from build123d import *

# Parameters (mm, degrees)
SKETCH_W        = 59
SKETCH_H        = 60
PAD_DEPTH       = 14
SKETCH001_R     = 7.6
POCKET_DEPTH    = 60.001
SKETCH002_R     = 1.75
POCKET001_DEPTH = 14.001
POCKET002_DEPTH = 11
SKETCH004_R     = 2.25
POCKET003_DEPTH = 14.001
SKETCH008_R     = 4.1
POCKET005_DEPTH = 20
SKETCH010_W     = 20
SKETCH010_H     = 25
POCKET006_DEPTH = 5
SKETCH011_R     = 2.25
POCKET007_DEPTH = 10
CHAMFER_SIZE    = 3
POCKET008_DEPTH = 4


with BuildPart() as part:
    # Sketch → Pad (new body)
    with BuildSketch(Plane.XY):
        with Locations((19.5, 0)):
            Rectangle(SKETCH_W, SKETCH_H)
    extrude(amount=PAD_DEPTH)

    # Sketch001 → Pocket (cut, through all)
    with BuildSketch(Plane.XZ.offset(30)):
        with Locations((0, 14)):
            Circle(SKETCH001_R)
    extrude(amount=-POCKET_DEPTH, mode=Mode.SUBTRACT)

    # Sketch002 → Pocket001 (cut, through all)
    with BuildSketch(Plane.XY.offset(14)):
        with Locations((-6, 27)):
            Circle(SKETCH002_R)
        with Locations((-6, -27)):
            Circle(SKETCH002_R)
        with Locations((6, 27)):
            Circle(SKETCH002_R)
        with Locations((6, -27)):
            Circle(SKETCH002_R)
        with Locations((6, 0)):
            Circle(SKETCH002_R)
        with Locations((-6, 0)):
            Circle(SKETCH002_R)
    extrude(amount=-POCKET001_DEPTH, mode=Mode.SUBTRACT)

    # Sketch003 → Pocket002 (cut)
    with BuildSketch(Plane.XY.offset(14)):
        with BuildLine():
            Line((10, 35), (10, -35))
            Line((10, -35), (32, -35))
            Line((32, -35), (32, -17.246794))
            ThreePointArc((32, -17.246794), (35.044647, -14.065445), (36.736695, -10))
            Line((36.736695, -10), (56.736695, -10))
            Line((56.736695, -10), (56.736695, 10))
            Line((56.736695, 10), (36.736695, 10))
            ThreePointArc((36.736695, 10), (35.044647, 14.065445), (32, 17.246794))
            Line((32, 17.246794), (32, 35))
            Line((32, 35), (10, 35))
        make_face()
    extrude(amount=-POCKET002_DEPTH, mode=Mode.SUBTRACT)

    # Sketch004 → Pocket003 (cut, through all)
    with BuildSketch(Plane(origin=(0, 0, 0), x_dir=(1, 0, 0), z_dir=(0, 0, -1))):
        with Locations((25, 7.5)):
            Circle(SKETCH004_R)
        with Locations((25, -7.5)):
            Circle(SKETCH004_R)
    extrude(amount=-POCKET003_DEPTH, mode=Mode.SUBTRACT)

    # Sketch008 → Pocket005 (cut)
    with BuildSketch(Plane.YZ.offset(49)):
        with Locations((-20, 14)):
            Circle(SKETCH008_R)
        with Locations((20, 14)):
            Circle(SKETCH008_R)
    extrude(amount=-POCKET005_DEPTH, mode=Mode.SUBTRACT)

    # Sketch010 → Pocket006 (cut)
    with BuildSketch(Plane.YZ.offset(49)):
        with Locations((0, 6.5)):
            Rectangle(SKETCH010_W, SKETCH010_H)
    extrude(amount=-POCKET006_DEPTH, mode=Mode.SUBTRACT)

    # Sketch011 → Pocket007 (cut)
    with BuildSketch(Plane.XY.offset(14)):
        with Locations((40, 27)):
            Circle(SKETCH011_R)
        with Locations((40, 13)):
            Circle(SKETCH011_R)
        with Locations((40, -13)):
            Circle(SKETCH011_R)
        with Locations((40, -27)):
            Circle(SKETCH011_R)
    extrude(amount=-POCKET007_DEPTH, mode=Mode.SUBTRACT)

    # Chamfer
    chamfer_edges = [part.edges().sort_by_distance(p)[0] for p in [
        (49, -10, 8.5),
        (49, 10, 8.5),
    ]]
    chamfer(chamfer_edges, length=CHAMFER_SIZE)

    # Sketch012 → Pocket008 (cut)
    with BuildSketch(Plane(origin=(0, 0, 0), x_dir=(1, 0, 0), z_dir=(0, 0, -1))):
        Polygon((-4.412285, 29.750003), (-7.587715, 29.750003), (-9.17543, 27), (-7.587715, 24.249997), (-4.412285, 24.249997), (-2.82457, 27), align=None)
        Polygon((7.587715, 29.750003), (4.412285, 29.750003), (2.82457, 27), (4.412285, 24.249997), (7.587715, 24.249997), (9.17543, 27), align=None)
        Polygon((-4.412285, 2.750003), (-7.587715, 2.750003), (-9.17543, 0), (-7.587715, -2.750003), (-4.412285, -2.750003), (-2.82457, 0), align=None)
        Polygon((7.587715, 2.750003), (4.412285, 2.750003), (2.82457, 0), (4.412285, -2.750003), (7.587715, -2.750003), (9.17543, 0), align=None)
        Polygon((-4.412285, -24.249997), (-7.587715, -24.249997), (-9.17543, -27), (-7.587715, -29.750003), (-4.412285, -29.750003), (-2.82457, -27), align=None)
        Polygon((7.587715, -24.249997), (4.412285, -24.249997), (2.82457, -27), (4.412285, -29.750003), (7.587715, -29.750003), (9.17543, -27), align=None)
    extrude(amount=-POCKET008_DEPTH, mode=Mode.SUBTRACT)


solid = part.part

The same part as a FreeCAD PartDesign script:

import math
import FreeCAD as App
import Part
import Sketcher
Q = App.Units.Quantity


def edges_at(feature, points):
    """Names of the edges that pass closest to the given points."""
    edges = feature.Shape.Edges
    near = lambda p: min(range(len(edges)), key=lambda i: edges[i].distToShape(Part.Vertex(*p))[0])
    return sorted({f"Edge{near(p) + 1}" for p in points})

doc = App.newDocument("Part")
body = doc.addObject("PartDesign::Body", "Body")

sketch1 = body.newObject("Sketcher::SketchObject", "Sketch")
sketch1.AttachmentSupport = (doc.getObject("XY_Plane"), [""])
sketch1.MapMode = "FlatFace"
sketch1.addGeometry(Part.LineSegment(App.Vector(-10, 30, 0), App.Vector(-10, -30, 0)), False)
sketch1.addGeometry(Part.LineSegment(App.Vector(-10, -30, 0), App.Vector(49, -30, 0)), False)
sketch1.addGeometry(Part.LineSegment(App.Vector(49, -30, 0), App.Vector(49, 30, 0)), False)
sketch1.addGeometry(Part.LineSegment(App.Vector(49, 30, 0), App.Vector(-10, 30, 0)), False)
sketch1.addConstraint(Sketcher.Constraint("Coincident", 0, 2, 1, 1))
sketch1.addConstraint(Sketcher.Constraint("Coincident", 1, 2, 2, 1))
sketch1.addConstraint(Sketcher.Constraint("Coincident", 2, 2, 3, 1))
sketch1.addConstraint(Sketcher.Constraint("Coincident", 3, 2, 0, 1))
sketch1.addConstraint(Sketcher.Constraint("Vertical", 0))
sketch1.addConstraint(Sketcher.Constraint("Horizontal", 1))
sketch1.addConstraint(Sketcher.Constraint("Vertical", 2))
sketch1.addConstraint(Sketcher.Constraint("Horizontal", 3))
sketch1.addConstraint(Sketcher.Constraint("DistanceX", 1, 1, 1, 2, Q("59 mm")))
sketch1.addConstraint(Sketcher.Constraint("DistanceY", 0, 2, 0, 1, Q("60 mm")))
sketch1.addConstraint(Sketcher.Constraint("DistanceX", 0, 2, -1, 1, Q("10 mm")))
sketch1.addConstraint(Sketcher.Constraint("DistanceY", 0, 2, -1, 1, Q("30 mm")))
pad1 = body.newObject("PartDesign::Pad", "Pad")
pad1.Profile = sketch1
pad1.Length = 14

sketch2 = body.newObject("Sketcher::SketchObject", "Sketch001")
sketch2.AttachmentSupport = (doc.getObject("XZ_Plane"), [""])
sketch2.MapMode = "FlatFace"
sketch2.AttachmentOffset = App.Placement(App.Vector(0, 0, 30), App.Rotation())
sketch2.addGeometry(Part.Circle(App.Vector(0, 14, 0), App.Vector(0, 0, 1), 8), False)
sketch2.addConstraint(Sketcher.Constraint("PointOnObject", 0, 3, -2))
sketch2.addConstraint(Sketcher.Constraint("Diameter", 0, Q("15.2 mm")))
sketch2.addConstraint(Sketcher.Constraint("DistanceY", -1, 1, 0, 3, Q("14 mm")))
pocket1 = body.newObject("PartDesign::Pocket", "Pocket")
pocket1.Profile = sketch2
pocket1.Type = "ThroughAll"

sketch3 = body.newObject("Sketcher::SketchObject", "Sketch002")
sketch3.AttachmentSupport = (doc.getObject("XY_Plane"), [""])
sketch3.MapMode = "FlatFace"
sketch3.AttachmentOffset = App.Placement(App.Vector(0, 0, 14), App.Rotation())
sketch3.addGeometry(Part.Circle(App.Vector(-6, 27, 0), App.Vector(0, 0, 1), 1.8), False)
sketch3.addGeometry(Part.Circle(App.Vector(-6, -27, 0), App.Vector(0, 0, 1), 1.8), False)
sketch3.addGeometry(Part.Circle(App.Vector(6, 27, 0), App.Vector(0, 0, 1), 1.8), False)
sketch3.addGeometry(Part.Circle(App.Vector(6, -27, 0), App.Vector(0, 0, 1), 1.8), False)
sketch3.addGeometry(Part.Circle(App.Vector(6, 0, 0), App.Vector(0, 0, 1), 1.8), False)
sketch3.addGeometry(Part.Circle(App.Vector(-6, 0, 0), App.Vector(0, 0, 1), 1.8), False)
sketch3.addConstraint(Sketcher.Constraint("Equal", 0, 1))
sketch3.addConstraint(Sketcher.Constraint("Equal", 1, 2))
sketch3.addConstraint(Sketcher.Constraint("Equal", 2, 3))
sketch3.addConstraint(Sketcher.Constraint("Equal", 3, 4))
sketch3.addConstraint(Sketcher.Constraint("Equal", 4, 5))
sketch3.addConstraint(Sketcher.Constraint("Symmetric", 1, 3, 2, 3, -1, 1))
sketch3.addConstraint(Sketcher.Constraint("Symmetric", 0, 3, 3, 3, -1, 1))
sketch3.addConstraint(Sketcher.Constraint("Symmetric", 4, 3, 5, 3, -1, 1))
sketch3.addConstraint(Sketcher.Constraint("Symmetric", 0, 3, 2, 3, -2))
sketch3.addConstraint(Sketcher.Constraint("PointOnObject", 4, 3, -1))
sketch3.addConstraint(Sketcher.Constraint("Vertical", 3, 3, 4, 3))
sketch3.addConstraint(Sketcher.Constraint("Diameter", 0, Q("3.5 mm")))
sketch3.addConstraint(Sketcher.Constraint("DistanceX", 0, 3, -1, 1, Q("6 mm")))
sketch3.addConstraint(Sketcher.Constraint("DistanceY", -1, 1, 0, 3, Q("27 mm")))
pocket2 = body.newObject("PartDesign::Pocket", "Pocket001")
pocket2.Profile = sketch3
pocket2.Type = "ThroughAll"

sketch4 = body.newObject("Sketcher::SketchObject", "Sketch003")
sketch4.AttachmentSupport = (doc.getObject("XY_Plane"), [""])
sketch4.MapMode = "FlatFace"
sketch4.AttachmentOffset = App.Placement(App.Vector(0, 0, 14), App.Rotation())
sketch4.addGeometry(Part.LineSegment(App.Vector(10, 35, 0), App.Vector(10, -35, 0)), False)
sketch4.addGeometry(Part.LineSegment(App.Vector(10, -35, 0), App.Vector(32, -35, 0)), False)
sketch4.addGeometry(Part.LineSegment(App.Vector(32, -35, 0), App.Vector(32, -17, 0)), False)
sketch4.addGeometry(Part.ArcOfCircle(Part.Circle(App.Vector(25, -7, 0), App.Vector(0, 0, 1), 12), math.radians(-54), math.radians(-12)), False)
sketch4.addGeometry(Part.LineSegment(App.Vector(37, -10, 0), App.Vector(57, -10, 0)), False)
sketch4.addGeometry(Part.LineSegment(App.Vector(57, -10, 0), App.Vector(57, 10, 0)), False)
sketch4.addGeometry(Part.LineSegment(App.Vector(57, 10, 0), App.Vector(37, 10, 0)), False)
sketch4.addGeometry(Part.ArcOfCircle(Part.Circle(App.Vector(25, 7, 0), App.Vector(0, 0, 1), 12), math.radians(12), math.radians(54)), False)
sketch4.addGeometry(Part.LineSegment(App.Vector(32, 17, 0), App.Vector(32, 35, 0)), False)
sketch4.addGeometry(Part.LineSegment(App.Vector(32, 35, 0), App.Vector(10, 35, 0)), False)
sketch4.addConstraint(Sketcher.Constraint("Coincident", 0, 2, 1, 1))
sketch4.addConstraint(Sketcher.Constraint("Coincident", 1, 2, 2, 1))
sketch4.addConstraint(Sketcher.Constraint("Coincident", 2, 2, 3, 1))
sketch4.addConstraint(Sketcher.Constraint("Coincident", 3, 2, 4, 1))
sketch4.addConstraint(Sketcher.Constraint("Coincident", 4, 2, 5, 1))
sketch4.addConstraint(Sketcher.Constraint("Coincident", 5, 2, 6, 1))
sketch4.addConstraint(Sketcher.Constraint("Coincident", 6, 2, 7, 1))
sketch4.addConstraint(Sketcher.Constraint("Coincident", 7, 2, 8, 1))
sketch4.addConstraint(Sketcher.Constraint("Coincident", 8, 2, 9, 1))
sketch4.addConstraint(Sketcher.Constraint("Coincident", 9, 2, 0, 1))
sketch4.addConstraint(Sketcher.Constraint("Vertical", 0))
sketch4.addConstraint(Sketcher.Constraint("Horizontal", 1))
sketch4.addConstraint(Sketcher.Constraint("Vertical", 2))
sketch4.addConstraint(Sketcher.Constraint("Horizontal", 4))
sketch4.addConstraint(Sketcher.Constraint("Vertical", 5))
sketch4.addConstraint(Sketcher.Constraint("Horizontal", 6))
sketch4.addConstraint(Sketcher.Constraint("Vertical", 8))
sketch4.addConstraint(Sketcher.Constraint("Horizontal", 9))
sketch4.addConstraint(Sketcher.Constraint("Equal", 3, 7))
sketch4.addConstraint(Sketcher.Constraint("Symmetric", 3, 3, 7, 3, -1))
sketch4.addConstraint(Sketcher.Constraint("Symmetric", 1, 2, 8, 2, -1))
sketch4.addConstraint(Sketcher.Constraint("Vertical", 3, 2, 6, 2))
sketch4.addConstraint(Sketcher.Constraint("Equal", 6, 5))
sketch4.addConstraint(Sketcher.Constraint("Radius", 3, Q("12 mm")))
sketch4.addConstraint(Sketcher.Constraint("DistanceX", 1, 1, 1, 2, Q("22 mm")))
sketch4.addConstraint(Sketcher.Constraint("DistanceX", 4, 1, 4, 2, Q("20 mm")))
sketch4.addConstraint(Sketcher.Constraint("DistanceY", 0, 2, 0, 1, Q("70 mm")))
sketch4.addConstraint(Sketcher.Constraint("DistanceX", -1, 1, 3, 3, Q("25.000001 mm")))
sketch4.addConstraint(Sketcher.Constraint("DistanceX", -1, 1, 0, 2, Q("10 mm")))
sketch4.addConstraint(Sketcher.Constraint("DistanceY", 3, 3, 7, 3, Q("14.999998 mm")))
pocket3 = body.newObject("PartDesign::Pocket", "Pocket002")
pocket3.Profile = sketch4
pocket3.Length = 11

sketch5 = body.newObject("Sketcher::SketchObject", "Sketch004")
sketch5.AttachmentSupport = (doc.getObject("XY_Plane"), [""])
sketch5.MapMode = "FlatFace"
sketch5.addGeometry(Part.Circle(App.Vector(25, -7.5, 0), App.Vector(0, 0, 1), 2.2), False)
sketch5.addGeometry(Part.Circle(App.Vector(25, 7.5, 0), App.Vector(0, 0, 1), 2.2), False)
sketch5.addConstraint(Sketcher.Constraint("Equal", 0, 1))
sketch5.addConstraint(Sketcher.Constraint("Symmetric", 0, 3, 1, 3, -1))
sketch5.addConstraint(Sketcher.Constraint("Diameter", 0, Q("4.5 mm")))
sketch5.addConstraint(Sketcher.Constraint("DistanceX", -1, 1, 0, 3, Q("25 mm")))
sketch5.addConstraint(Sketcher.Constraint("DistanceY", 0, 3, 1, 3, Q("15 mm")))
pocket4 = body.newObject("PartDesign::Pocket", "Pocket003")
pocket4.Profile = sketch5
pocket4.Type = "ThroughAll"
pocket4.Reversed = True

sketch6 = body.newObject("Sketcher::SketchObject", "Sketch005")
sketch6.AttachmentSupport = (doc.getObject("YZ_Plane"), [""])
sketch6.MapMode = "FlatFace"
sketch6.AttachmentOffset = App.Placement(App.Vector(0, 0, 49), App.Rotation())
sketch6.addGeometry(Part.Circle(App.Vector(-20, 14, 0), App.Vector(0, 0, 1), 4.1), False)
sketch6.addGeometry(Part.Circle(App.Vector(20, 14, 0), App.Vector(0, 0, 1), 4.1), False)
sketch6.addConstraint(Sketcher.Constraint("Equal", 0, 1))
sketch6.addConstraint(Sketcher.Constraint("Symmetric", 0, 3, 1, 3, -2))
sketch6.addConstraint(Sketcher.Constraint("Diameter", 0, Q("8.2 mm")))
sketch6.addConstraint(Sketcher.Constraint("DistanceX", 0, 3, -1, 1, Q("20 mm")))
sketch6.addConstraint(Sketcher.Constraint("DistanceY", -1, 1, 0, 3, Q("14 mm")))
pocket5 = body.newObject("PartDesign::Pocket", "Pocket004")
pocket5.Profile = sketch6
pocket5.Length = 20

sketch7 = body.newObject("Sketcher::SketchObject", "Sketch006")
sketch7.AttachmentSupport = (doc.getObject("YZ_Plane"), [""])
sketch7.MapMode = "FlatFace"
sketch7.AttachmentOffset = App.Placement(App.Vector(0, 0, 49), App.Rotation())
sketch7.addGeometry(Part.LineSegment(App.Vector(-10, 19, 0), App.Vector(-10, -6, 0)), False)
sketch7.addGeometry(Part.LineSegment(App.Vector(-10, -6, 0), App.Vector(10, -6, 0)), False)
sketch7.addGeometry(Part.LineSegment(App.Vector(10, -6, 0), App.Vector(10, 19, 0)), False)
sketch7.addGeometry(Part.LineSegment(App.Vector(10, 19, 0), App.Vector(-10, 19, 0)), False)
sketch7.addConstraint(Sketcher.Constraint("Coincident", 0, 2, 1, 1))
sketch7.addConstraint(Sketcher.Constraint("Coincident", 1, 2, 2, 1))
sketch7.addConstraint(Sketcher.Constraint("Coincident", 2, 2, 3, 1))
sketch7.addConstraint(Sketcher.Constraint("Coincident", 3, 2, 0, 1))
sketch7.addConstraint(Sketcher.Constraint("Vertical", 0))
sketch7.addConstraint(Sketcher.Constraint("Horizontal", 1))
sketch7.addConstraint(Sketcher.Constraint("Vertical", 2))
sketch7.addConstraint(Sketcher.Constraint("Horizontal", 3))
sketch7.addConstraint(Sketcher.Constraint("DistanceX", 1, 1, 1, 2, Q("20 mm")))
sketch7.addConstraint(Sketcher.Constraint("DistanceY", 0, 2, 0, 1, Q("25 mm")))
sketch7.addConstraint(Sketcher.Constraint("DistanceX", 0, 2, -1, 1, Q("10 mm")))
sketch7.addConstraint(Sketcher.Constraint("DistanceY", 0, 2, -1, 1, Q("6 mm")))
pocket6 = body.newObject("PartDesign::Pocket", "Pocket005")
pocket6.Profile = sketch7
pocket6.Length = 5

sketch8 = body.newObject("Sketcher::SketchObject", "Sketch007")
sketch8.AttachmentSupport = (doc.getObject("XY_Plane"), [""])
sketch8.MapMode = "FlatFace"
sketch8.AttachmentOffset = App.Placement(App.Vector(0, 0, 14), App.Rotation())
sketch8.addGeometry(Part.Circle(App.Vector(40, 27, 0), App.Vector(0, 0, 1), 2.2), False)
sketch8.addGeometry(Part.Circle(App.Vector(40, 13, 0), App.Vector(0, 0, 1), 2.2), False)
sketch8.addGeometry(Part.Circle(App.Vector(40, -13, 0), App.Vector(0, 0, 1), 2.2), False)
sketch8.addGeometry(Part.Circle(App.Vector(40, -27, 0), App.Vector(0, 0, 1), 2.2), False)
sketch8.addConstraint(Sketcher.Constraint("Equal", 0, 1))
sketch8.addConstraint(Sketcher.Constraint("Equal", 1, 2))
sketch8.addConstraint(Sketcher.Constraint("Equal", 2, 3))
sketch8.addConstraint(Sketcher.Constraint("Symmetric", 1, 3, 2, 3, -1))
sketch8.addConstraint(Sketcher.Constraint("Symmetric", 0, 3, 3, 3, -1))
sketch8.addConstraint(Sketcher.Constraint("Vertical", 0, 3, 1, 3))
sketch8.addConstraint(Sketcher.Constraint("Diameter", 0, Q("4.5 mm")))
sketch8.addConstraint(Sketcher.Constraint("DistanceX", -1, 1, 0, 3, Q("40 mm")))
sketch8.addConstraint(Sketcher.Constraint("DistanceY", -1, 1, 0, 3, Q("27 mm")))
sketch8.addConstraint(Sketcher.Constraint("DistanceY", -1, 1, 1, 3, Q("13 mm")))
pocket7 = body.newObject("PartDesign::Pocket", "Pocket006")
pocket7.Profile = sketch8
pocket7.Length = 10
doc.recompute()

chamfer = body.newObject("PartDesign::Chamfer", "Chamfer")
chamfer.Base = (pocket7, edges_at(pocket7, [(49, -10, 7), (49, 10, 7)]))
chamfer.Size = 3

sketch9 = body.newObject("Sketcher::SketchObject", "Sketch008")
sketch9.AttachmentSupport = (doc.getObject("XY_Plane"), [""])
sketch9.MapMode = "FlatFace"
sketch9.addGeometry(Part.LineSegment(App.Vector(-4.4, -29.8, 0), App.Vector(-7.6, -29.8, 0)), False)
sketch9.addGeometry(Part.LineSegment(App.Vector(-7.6, -29.8, 0), App.Vector(-9.2, -27, 0)), False)
sketch9.addGeometry(Part.LineSegment(App.Vector(-9.2, -27, 0), App.Vector(-7.6, -24.2, 0)), False)
sketch9.addGeometry(Part.LineSegment(App.Vector(-7.6, -24.2, 0), App.Vector(-4.4, -24.2, 0)), False)
sketch9.addGeometry(Part.LineSegment(App.Vector(-4.4, -24.2, 0), App.Vector(-2.8, -27, 0)), False)
sketch9.addGeometry(Part.LineSegment(App.Vector(-2.8, -27, 0), App.Vector(-4.4, -29.8, 0)), False)
sketch9.addGeometry(Part.LineSegment(App.Vector(7.6, -29.8, 0), App.Vector(4.4, -29.8, 0)), False)
sketch9.addGeometry(Part.LineSegment(App.Vector(4.4, -29.8, 0), App.Vector(2.8, -27, 0)), False)
sketch9.addGeometry(Part.LineSegment(App.Vector(2.8, -27, 0), App.Vector(4.4, -24.2, 0)), False)
sketch9.addGeometry(Part.LineSegment(App.Vector(4.4, -24.2, 0), App.Vector(7.6, -24.2, 0)), False)
sketch9.addGeometry(Part.LineSegment(App.Vector(7.6, -24.2, 0), App.Vector(9.2, -27, 0)), False)
sketch9.addGeometry(Part.LineSegment(App.Vector(9.2, -27, 0), App.Vector(7.6, -29.8, 0)), False)
sketch9.addGeometry(Part.LineSegment(App.Vector(-4.4, -2.8, 0), App.Vector(-7.6, -2.8, 0)), False)
sketch9.addGeometry(Part.LineSegment(App.Vector(-7.6, -2.8, 0), App.Vector(-9.2, 0, 0)), False)
sketch9.addGeometry(Part.LineSegment(App.Vector(-9.2, 0, 0), App.Vector(-7.6, 2.8, 0)), False)
sketch9.addGeometry(Part.LineSegment(App.Vector(-7.6, 2.8, 0), App.Vector(-4.4, 2.8, 0)), False)
sketch9.addGeometry(Part.LineSegment(App.Vector(-4.4, 2.8, 0), App.Vector(-2.8, 0, 0)), False)
sketch9.addGeometry(Part.LineSegment(App.Vector(-2.8, 0, 0), App.Vector(-4.4, -2.8, 0)), False)
sketch9.addGeometry(Part.LineSegment(App.Vector(7.6, -2.8, 0), App.Vector(4.4, -2.8, 0)), False)
sketch9.addGeometry(Part.LineSegment(App.Vector(4.4, -2.8, 0), App.Vector(2.8, 0, 0)), False)
sketch9.addGeometry(Part.LineSegment(App.Vector(2.8, 0, 0), App.Vector(4.4, 2.8, 0)), False)
sketch9.addGeometry(Part.LineSegment(App.Vector(4.4, 2.8, 0), App.Vector(7.6, 2.8, 0)), False)
sketch9.addGeometry(Part.LineSegment(App.Vector(7.6, 2.8, 0), App.Vector(9.2, 0, 0)), False)
sketch9.addGeometry(Part.LineSegment(App.Vector(9.2, 0, 0), App.Vector(7.6, -2.8, 0)), False)
sketch9.addGeometry(Part.LineSegment(App.Vector(-4.4, 24.2, 0), App.Vector(-7.6, 24.2, 0)), False)
sketch9.addGeometry(Part.LineSegment(App.Vector(-7.6, 24.2, 0), App.Vector(-9.2, 27, 0)), False)
sketch9.addGeometry(Part.LineSegment(App.Vector(-9.2, 27, 0), App.Vector(-7.6, 29.8, 0)), False)
sketch9.addGeometry(Part.LineSegment(App.Vector(-7.6, 29.8, 0), App.Vector(-4.4, 29.8, 0)), False)
sketch9.addGeometry(Part.LineSegment(App.Vector(-4.4, 29.8, 0), App.Vector(-2.8, 27, 0)), False)
sketch9.addGeometry(Part.LineSegment(App.Vector(-2.8, 27, 0), App.Vector(-4.4, 24.2, 0)), False)
sketch9.addGeometry(Part.LineSegment(App.Vector(7.6, 24.2, 0), App.Vector(4.4, 24.2, 0)), False)
sketch9.addGeometry(Part.LineSegment(App.Vector(4.4, 24.2, 0), App.Vector(2.8, 27, 0)), False)
sketch9.addGeometry(Part.LineSegment(App.Vector(2.8, 27, 0), App.Vector(4.4, 29.8, 0)), False)
sketch9.addGeometry(Part.LineSegment(App.Vector(4.4, 29.8, 0), App.Vector(7.6, 29.8, 0)), False)
sketch9.addGeometry(Part.LineSegment(App.Vector(7.6, 29.8, 0), App.Vector(9.2, 27, 0)), False)
sketch9.addGeometry(Part.LineSegment(App.Vector(9.2, 27, 0), App.Vector(7.6, 24.2, 0)), False)
sketch9.addConstraint(Sketcher.Constraint("Coincident", 0, 2, 1, 1))
sketch9.addConstraint(Sketcher.Constraint("Coincident", 1, 2, 2, 1))
sketch9.addConstraint(Sketcher.Constraint("Coincident", 2, 2, 3, 1))
sketch9.addConstraint(Sketcher.Constraint("Coincident", 3, 2, 4, 1))
sketch9.addConstraint(Sketcher.Constraint("Coincident", 4, 2, 5, 1))
sketch9.addConstraint(Sketcher.Constraint("Coincident", 5, 2, 0, 1))
sketch9.addConstraint(Sketcher.Constraint("Coincident", 6, 2, 7, 1))
sketch9.addConstraint(Sketcher.Constraint("Coincident", 7, 2, 8, 1))
sketch9.addConstraint(Sketcher.Constraint("Coincident", 8, 2, 9, 1))
sketch9.addConstraint(Sketcher.Constraint("Coincident", 9, 2, 10, 1))
sketch9.addConstraint(Sketcher.Constraint("Coincident", 10, 2, 11, 1))
sketch9.addConstraint(Sketcher.Constraint("Coincident", 11, 2, 6, 1))
sketch9.addConstraint(Sketcher.Constraint("Coincident", 12, 2, 13, 1))
sketch9.addConstraint(Sketcher.Constraint("Coincident", 13, 2, 14, 1))
sketch9.addConstraint(Sketcher.Constraint("Coincident", 14, 2, 15, 1))
sketch9.addConstraint(Sketcher.Constraint("Coincident", 15, 2, 16, 1))
sketch9.addConstraint(Sketcher.Constraint("Coincident", 16, 2, 17, 1))
sketch9.addConstraint(Sketcher.Constraint("Coincident", 17, 2, 12, 1))
sketch9.addConstraint(Sketcher.Constraint("Coincident", 18, 2, 19, 1))
sketch9.addConstraint(Sketcher.Constraint("Coincident", 19, 2, 20, 1))
sketch9.addConstraint(Sketcher.Constraint("Coincident", 20, 2, 21, 1))
sketch9.addConstraint(Sketcher.Constraint("Coincident", 21, 2, 22, 1))
sketch9.addConstraint(Sketcher.Constraint("Coincident", 22, 2, 23, 1))
sketch9.addConstraint(Sketcher.Constraint("Coincident", 23, 2, 18, 1))
sketch9.addConstraint(Sketcher.Constraint("Coincident", 24, 2, 25, 1))
sketch9.addConstraint(Sketcher.Constraint("Coincident", 25, 2, 26, 1))
sketch9.addConstraint(Sketcher.Constraint("Coincident", 26, 2, 27, 1))
sketch9.addConstraint(Sketcher.Constraint("Coincident", 27, 2, 28, 1))
sketch9.addConstraint(Sketcher.Constraint("Coincident", 28, 2, 29, 1))
sketch9.addConstraint(Sketcher.Constraint("Coincident", 29, 2, 24, 1))
sketch9.addConstraint(Sketcher.Constraint("Coincident", 30, 2, 31, 1))
sketch9.addConstraint(Sketcher.Constraint("Coincident", 31, 2, 32, 1))
sketch9.addConstraint(Sketcher.Constraint("Coincident", 32, 2, 33, 1))
sketch9.addConstraint(Sketcher.Constraint("Coincident", 33, 2, 34, 1))
sketch9.addConstraint(Sketcher.Constraint("Coincident", 34, 2, 35, 1))
sketch9.addConstraint(Sketcher.Constraint("Coincident", 35, 2, 30, 1))
sketch9.addConstraint(Sketcher.Constraint("Horizontal", 0))
sketch9.addConstraint(Sketcher.Constraint("Horizontal", 3))
sketch9.addConstraint(Sketcher.Constraint("Horizontal", 6))
sketch9.addConstraint(Sketcher.Constraint("Horizontal", 9))
sketch9.addConstraint(Sketcher.Constraint("Horizontal", 12))
sketch9.addConstraint(Sketcher.Constraint("Horizontal", 15))
sketch9.addConstraint(Sketcher.Constraint("Horizontal", 18))
sketch9.addConstraint(Sketcher.Constraint("Horizontal", 21))
sketch9.addConstraint(Sketcher.Constraint("Horizontal", 24))
sketch9.addConstraint(Sketcher.Constraint("Horizontal", 27))
sketch9.addConstraint(Sketcher.Constraint("Horizontal", 30))
sketch9.addConstraint(Sketcher.Constraint("Horizontal", 33))
sketch9.addConstraint(Sketcher.Constraint("Symmetric", 15, 2, 18, 2, -1, 1))
sketch9.addConstraint(Sketcher.Constraint("Symmetric", 16, 2, 19, 2, -1, 1))
sketch9.addConstraint(Sketcher.Constraint("Symmetric", 17, 2, 20, 2, -1, 1))
sketch9.addConstraint(Sketcher.Constraint("Symmetric", 13, 2, 22, 2, -1, 1))
sketch9.addConstraint(Sketcher.Constraint("Symmetric", 9, 2, 24, 2, -1, 1))
sketch9.addConstraint(Sketcher.Constraint("Symmetric", 10, 2, 25, 2, -1, 1))
sketch9.addConstraint(Sketcher.Constraint("Symmetric", 11, 2, 26, 2, -1, 1))
sketch9.addConstraint(Sketcher.Constraint("Symmetric", 7, 2, 28, 2, -1, 1))
sketch9.addConstraint(Sketcher.Constraint("Symmetric", 3, 2, 30, 2, -1, 1))
sketch9.addConstraint(Sketcher.Constraint("Symmetric", 4, 2, 31, 2, -1, 1))
sketch9.addConstraint(Sketcher.Constraint("Symmetric", 5, 2, 32, 2, -1, 1))
sketch9.addConstraint(Sketcher.Constraint("Symmetric", 1, 2, 34, 2, -1, 1))
sketch9.addConstraint(Sketcher.Constraint("Symmetric", 5, 2, 6, 2, -2))
sketch9.addConstraint(Sketcher.Constraint("Symmetric", 4, 2, 7, 2, -2))
sketch9.addConstraint(Sketcher.Constraint("Symmetric", 3, 2, 8, 2, -2))
sketch9.addConstraint(Sketcher.Constraint("Symmetric", 1, 2, 10, 2, -2))
sketch9.addConstraint(Sketcher.Constraint("Symmetric", 17, 2, 18, 2, -2))
sketch9.addConstraint(Sketcher.Constraint("PointOnObject", 13, 2, -1))
sketch9.addConstraint(Sketcher.Constraint("PointOnObject", 16, 2, -1))
sketch9.addConstraint(Sketcher.Constraint("Parallel", 1, 4))
sketch9.addConstraint(Sketcher.Constraint("Parallel", 2, 5))
sketch9.addConstraint(Sketcher.Constraint("Parallel", 4, 7))
sketch9.addConstraint(Sketcher.Constraint("Parallel", 7, 10))
sketch9.addConstraint(Sketcher.Constraint("Parallel", 8, 11))
sketch9.addConstraint(Sketcher.Constraint("Parallel", 10, 13))
sketch9.addConstraint(Sketcher.Constraint("Parallel", 11, 14))
sketch9.addConstraint(Sketcher.Constraint("Parallel", 13, 16))
sketch9.addConstraint(Sketcher.Constraint("Parallel", 19, 22))
sketch9.addConstraint(Sketcher.Constraint("Parallel", 20, 23))
sketch9.addConstraint(Sketcher.Constraint("Parallel", 25, 28))
sketch9.addConstraint(Sketcher.Constraint("Parallel", 26, 29))
sketch9.addConstraint(Sketcher.Constraint("Parallel", 31, 34))
sketch9.addConstraint(Sketcher.Constraint("Parallel", 32, 35))
sketch9.addConstraint(Sketcher.Constraint("Horizontal", 1, 2, 4, 2))
sketch9.addConstraint(Sketcher.Constraint("Vertical", 0, 2, 2, 2))
sketch9.addConstraint(Sketcher.Constraint("Vertical", 2, 2, 12, 2))
sketch9.addConstraint(Sketcher.Constraint("Vertical", 1, 2, 13, 2))
sketch9.addConstraint(Sketcher.Constraint("Vertical", 5, 2, 15, 2))
sketch9.addConstraint(Sketcher.Constraint("Angle", 1, Q("120 deg")))
sketch9.addConstraint(Sketcher.Constraint("DistanceY", 1, 2, -1, 1, Q("27 mm")))
sketch9.addConstraint(Sketcher.Constraint("DistanceX", 0, 2, 6, 2, Q("12 mm")))
sketch9.addConstraint(Sketcher.Constraint("DistanceX", 0, 2, 0, 1, Q("3.17543 mm")))
sketch9.addConstraint(Sketcher.Constraint("Distance", 1, Q("3.17543 mm")))
pocket8 = body.newObject("PartDesign::Pocket", "Pocket007")
pocket8.Profile = sketch9
pocket8.Length = 4
pocket8.Reversed = True

doc.recompute()
